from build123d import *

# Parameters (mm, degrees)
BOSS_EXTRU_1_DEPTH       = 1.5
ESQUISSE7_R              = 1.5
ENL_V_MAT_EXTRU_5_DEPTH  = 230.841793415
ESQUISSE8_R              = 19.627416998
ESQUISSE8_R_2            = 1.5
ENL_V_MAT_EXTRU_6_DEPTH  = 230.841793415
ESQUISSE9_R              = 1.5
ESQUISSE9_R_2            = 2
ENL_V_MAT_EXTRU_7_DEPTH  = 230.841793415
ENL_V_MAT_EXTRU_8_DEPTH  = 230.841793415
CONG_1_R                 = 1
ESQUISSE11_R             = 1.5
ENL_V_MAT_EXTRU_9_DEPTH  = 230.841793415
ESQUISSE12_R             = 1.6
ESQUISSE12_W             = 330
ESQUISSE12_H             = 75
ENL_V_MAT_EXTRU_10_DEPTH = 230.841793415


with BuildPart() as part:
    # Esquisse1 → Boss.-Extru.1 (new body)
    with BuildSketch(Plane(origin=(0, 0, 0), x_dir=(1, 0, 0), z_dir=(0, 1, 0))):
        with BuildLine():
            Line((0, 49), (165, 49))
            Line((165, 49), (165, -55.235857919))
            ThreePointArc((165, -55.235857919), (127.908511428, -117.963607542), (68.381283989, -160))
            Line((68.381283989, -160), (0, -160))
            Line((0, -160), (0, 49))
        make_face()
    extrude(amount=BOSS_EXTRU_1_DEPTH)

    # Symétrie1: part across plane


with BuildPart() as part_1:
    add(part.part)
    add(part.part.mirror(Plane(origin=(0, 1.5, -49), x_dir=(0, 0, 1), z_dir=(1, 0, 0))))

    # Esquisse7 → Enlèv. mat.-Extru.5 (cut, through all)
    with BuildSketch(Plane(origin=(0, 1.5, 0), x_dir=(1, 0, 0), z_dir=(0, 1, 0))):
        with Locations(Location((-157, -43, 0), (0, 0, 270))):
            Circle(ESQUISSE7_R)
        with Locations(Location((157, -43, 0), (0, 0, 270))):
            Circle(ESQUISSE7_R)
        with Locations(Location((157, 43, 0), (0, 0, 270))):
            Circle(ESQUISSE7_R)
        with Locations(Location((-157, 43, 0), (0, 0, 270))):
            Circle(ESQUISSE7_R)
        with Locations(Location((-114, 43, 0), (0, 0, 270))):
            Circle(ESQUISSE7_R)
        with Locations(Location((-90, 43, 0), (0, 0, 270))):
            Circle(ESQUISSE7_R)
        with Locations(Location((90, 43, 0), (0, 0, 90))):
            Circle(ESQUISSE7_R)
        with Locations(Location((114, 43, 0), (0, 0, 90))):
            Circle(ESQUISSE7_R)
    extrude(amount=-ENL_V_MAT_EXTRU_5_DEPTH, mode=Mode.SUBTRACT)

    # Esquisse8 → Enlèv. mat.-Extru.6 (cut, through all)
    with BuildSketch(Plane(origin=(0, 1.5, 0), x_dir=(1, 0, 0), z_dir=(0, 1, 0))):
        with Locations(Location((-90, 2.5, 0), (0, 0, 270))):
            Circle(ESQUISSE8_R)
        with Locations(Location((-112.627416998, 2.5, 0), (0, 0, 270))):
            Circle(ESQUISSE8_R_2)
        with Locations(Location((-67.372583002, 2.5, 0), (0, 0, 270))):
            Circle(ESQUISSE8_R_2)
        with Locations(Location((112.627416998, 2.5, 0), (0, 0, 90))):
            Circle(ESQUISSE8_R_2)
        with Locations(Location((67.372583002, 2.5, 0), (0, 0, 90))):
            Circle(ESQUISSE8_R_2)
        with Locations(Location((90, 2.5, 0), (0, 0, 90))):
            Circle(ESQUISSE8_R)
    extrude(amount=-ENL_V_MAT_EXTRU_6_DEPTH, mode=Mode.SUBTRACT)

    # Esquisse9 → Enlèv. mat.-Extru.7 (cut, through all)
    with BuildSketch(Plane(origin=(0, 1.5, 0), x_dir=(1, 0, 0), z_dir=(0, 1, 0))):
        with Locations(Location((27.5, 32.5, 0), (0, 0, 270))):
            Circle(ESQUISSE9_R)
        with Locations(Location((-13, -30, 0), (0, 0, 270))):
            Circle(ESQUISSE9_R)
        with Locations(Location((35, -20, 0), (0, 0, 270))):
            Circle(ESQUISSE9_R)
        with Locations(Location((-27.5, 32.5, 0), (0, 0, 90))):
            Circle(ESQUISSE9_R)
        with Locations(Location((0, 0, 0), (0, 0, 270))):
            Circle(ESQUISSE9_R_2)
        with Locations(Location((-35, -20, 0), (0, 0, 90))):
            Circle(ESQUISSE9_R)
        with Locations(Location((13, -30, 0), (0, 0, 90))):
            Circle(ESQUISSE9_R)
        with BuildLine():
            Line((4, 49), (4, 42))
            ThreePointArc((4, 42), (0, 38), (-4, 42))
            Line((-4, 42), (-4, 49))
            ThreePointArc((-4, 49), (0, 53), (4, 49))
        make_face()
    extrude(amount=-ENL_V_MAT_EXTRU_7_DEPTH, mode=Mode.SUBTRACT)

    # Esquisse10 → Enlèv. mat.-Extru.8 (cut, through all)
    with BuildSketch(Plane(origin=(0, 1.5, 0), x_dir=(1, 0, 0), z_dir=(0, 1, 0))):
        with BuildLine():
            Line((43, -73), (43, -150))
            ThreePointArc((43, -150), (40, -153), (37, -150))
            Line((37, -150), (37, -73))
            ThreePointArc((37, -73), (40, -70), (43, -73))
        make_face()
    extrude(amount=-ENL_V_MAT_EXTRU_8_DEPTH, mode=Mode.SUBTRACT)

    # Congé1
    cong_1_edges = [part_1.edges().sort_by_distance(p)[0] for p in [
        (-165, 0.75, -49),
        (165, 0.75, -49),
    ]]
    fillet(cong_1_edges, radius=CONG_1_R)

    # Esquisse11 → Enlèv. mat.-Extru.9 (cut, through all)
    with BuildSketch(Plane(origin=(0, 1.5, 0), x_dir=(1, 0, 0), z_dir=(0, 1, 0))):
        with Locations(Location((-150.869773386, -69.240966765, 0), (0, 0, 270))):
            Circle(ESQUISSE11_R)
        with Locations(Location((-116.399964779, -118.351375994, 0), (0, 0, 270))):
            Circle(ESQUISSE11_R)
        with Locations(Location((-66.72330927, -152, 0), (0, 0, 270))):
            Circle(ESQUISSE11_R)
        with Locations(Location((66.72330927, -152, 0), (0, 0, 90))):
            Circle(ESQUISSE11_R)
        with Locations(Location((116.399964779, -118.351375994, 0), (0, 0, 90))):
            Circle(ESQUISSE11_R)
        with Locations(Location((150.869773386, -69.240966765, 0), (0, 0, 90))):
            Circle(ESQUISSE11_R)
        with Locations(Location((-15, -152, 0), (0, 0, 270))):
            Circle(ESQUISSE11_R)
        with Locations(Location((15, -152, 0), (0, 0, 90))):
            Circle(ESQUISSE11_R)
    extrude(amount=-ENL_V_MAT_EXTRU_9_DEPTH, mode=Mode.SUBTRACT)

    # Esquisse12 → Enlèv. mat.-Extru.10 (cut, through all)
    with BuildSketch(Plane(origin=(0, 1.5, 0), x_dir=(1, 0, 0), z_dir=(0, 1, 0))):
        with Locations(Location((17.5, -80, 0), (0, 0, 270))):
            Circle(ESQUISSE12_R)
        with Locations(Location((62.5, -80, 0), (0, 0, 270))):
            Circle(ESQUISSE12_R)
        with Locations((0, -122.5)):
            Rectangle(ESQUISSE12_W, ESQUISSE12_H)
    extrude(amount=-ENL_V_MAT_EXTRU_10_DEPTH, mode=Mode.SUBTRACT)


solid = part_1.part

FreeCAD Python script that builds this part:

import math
import FreeCAD as App
import Part
import Sketcher

V = App.Vector


def edges_at(feature, points):
    """Names of the edges that pass closest to the given points."""
    edges = feature.Shape.Edges
    near = lambda p: min(range(len(edges)), key=lambda i: edges[i].distToShape(Part.Vertex(*p))[0])
    return sorted({f"Edge{near(p) + 1}" for p in points})

doc = App.newDocument("Part")
params = doc.addObject("Spreadsheet::Sheet", "Params")
for row, (alias, value) in enumerate([
    ("sketch1_radius", "174 mm"),
    ("sketch1_width", "165 mm"),
    ("sketch1_height", "209 mm"),
    ("pad1_length", "1.5 mm"),
    ("sketch2_diameter", "3 mm"),
    ("sketch3_diameter", "3 mm"),
    ("sketch4_diameter", "3 mm"),
    ("sketch4_diameter2", "4 mm"),
    ("sketch4_radius", "4 mm"),
    ("sketch4_height", "7 mm"),
    ("sketch5_radius", "3 mm"),
    ("sketch5_height", "77 mm"),
    ("fillet_radius", "1 mm"),
    ("sketch6_diameter", "3 mm"),
    ("sketch7_diameter", "3.2 mm"),
    ("sketch7_width", "330 mm"),
    ("sketch7_height", "75 mm"),
], start=1):
    params.set(f"A{row}", alias)
    params.set(f"B{row}", "=" + value)
    params.setAlias(f"B{row}", alias)

body = doc.addObject("PartDesign::Body", "Body")

sketch1 = body.newObject("Sketcher::SketchObject", "Sketch")
sketch1.AttachmentSupport = (doc.getObject("XZ_Plane"), [""])
sketch1.MapMode = "FlatFace"
sketch1.addGeometry([
    Part.LineSegment(V(165, -49, 0), V(0, -49, 0)),
    Part.LineSegment(V(0, -49, 0), V(0, 160, 0)),
    Part.LineSegment(V(0, 160, 0), V(68, 160, 0)),
    Part.ArcOfCircle(Part.Circle(V(0, 0, 0), V(0, 0, 1), 174), math.radians(19), math.radians(67)),
    Part.LineSegment(V(165, 55, 0), V(165, -49, 0)),
], False)
sketch1.addConstraint([
    Sketcher.Constraint("Coincident", 0, 2, 1, 1),
    Sketcher.Constraint("Coincident", 1, 2, 2, 1),
    Sketcher.Constraint("Coincident", 2, 2, 3, 2),
    Sketcher.Constraint("Coincident", 3, 1, 4, 1),
    Sketcher.Constraint("Coincident", 4, 2, 0, 1),
    Sketcher.Constraint("Horizontal", 0),
    Sketcher.Constraint("Vertical", 1),
    Sketcher.Constraint("Horizontal", 2),
    Sketcher.Constraint("Vertical", 4),
    Sketcher.Constraint("Coincident", 3, 3, -1, 1),
    Sketcher.Constraint("PointOnObject", 0, 2, -2),
    Sketcher.Constraint("Radius", 3, 174.0),
    Sketcher.Constraint("DistanceX", 0, 2, 0, 1, 165.0),
    Sketcher.Constraint("DistanceY", 1, 1, 1, 2, 209.0),
    Sketcher.Constraint("DistanceY", 0, 2, -1, 1, 49.0),
])
sketch1.setExpression("Constraints[11]", "Params.sketch1_radius")
sketch1.setExpression("Constraints[12]", "Params.sketch1_width")
sketch1.setExpression("Constraints[13]", "Params.sketch1_height")
pad1 = body.newObject("PartDesign::Pad", "Pad")
pad1.Profile = sketch1
pad1.setExpression("Length", "Params.pad1_length")
pad1.Reversed = True
body2 = doc.addObject("PartDesign::Body", "Body001")
doc.recompute()

body2.BaseFeature = body
doc.recompute()

mirroring = doc.addObject("Part::Mirroring", "Mirroring")
mirroring.Source = body
mirroring.Base = V(0, 1.5, -49)
mirroring.Normal = V(1, 0, 0)
body3 = doc.addObject("PartDesign::Body", "Body002")
body3.BaseFeature = mirroring
boolean = body2.newObject("PartDesign::Boolean", "Boolean")
boolean.Type = "Fuse"
boolean.addObjects([body3])
doc.recompute()

sketch2 = body2.newObject("Sketcher::SketchObject", "Sketch001")
sketch2.AttachmentSupport = (doc.getObject("XZ_Plane001"), [""])
sketch2.MapMode = "FlatFace"
sketch2.AttachmentOffset = App.Placement(V(0, 0, -1.5), App.Rotation())
sketch2.addGeometry([
    Part.Circle(V(-157, 43, 0), V(0, 0, 1), 1.5),
    Part.Circle(V(157, 43, 0), V(0, 0, 1), 1.5),
    Part.Circle(V(157, -43, 0), V(0, 0, 1), 1.5),
    Part.Circle(V(-157, -43, 0), V(0, 0, 1), 1.5),
    Part.Circle(V(-114, -43, 0), V(0, 0, 1), 1.5),
    Part.Circle(V(-90, -43, 0), V(0, 0, 1), 1.5),
    Part.Circle(V(90, -43, 0), V(0, 0, 1), 1.5),
    Part.Circle(V(114, -43, 0), V(0, 0, 1), 1.5),
], False)
sketch2.addConstraint([
    Sketcher.Constraint("Equal", 0, 1),
    Sketcher.Constraint("Equal", 1, 2),
    Sketcher.Constraint("Equal", 2, 3),
    Sketcher.Constraint("Equal", 3, 4),
    Sketcher.Constraint("Equal", 4, 5),
    Sketcher.Constraint("Equal", 5, 6),
    Sketcher.Constraint("Equal", 6, 7),
    Sketcher.Constraint("Symmetric", 0, 3, 2, 3, -1, 1),
    Sketcher.Constraint("Symmetric", 1, 3, 3, 3, -1, 1),
    Sketcher.Constraint("Symmetric", 0, 3, 1, 3, -2),
    Sketcher.Constraint("Symmetric", 5, 3, 6, 3, -2),
    Sketcher.Constraint("Symmetric", 4, 3, 7, 3, -2),
    Sketcher.Constraint("Horizontal", 3, 3, 4, 3),
    Sketcher.Constraint("Horizontal", 4, 3, 5, 3),
    Sketcher.Constraint("Diameter", 0, 3.0),
    Sketcher.Constraint("DistanceX", 0, 3, -1, 1, 157.0),
    Sketcher.Constraint("DistanceY", -1, 1, 0, 3, 43.0),
    Sketcher.Constraint("DistanceX", 4, 3, -1, 1, 114.0),
    Sketcher.Constraint("DistanceX", 5, 3, -1, 1, 90.0),
])
sketch2.setExpression("Constraints[14]", "Params.sketch2_diameter")
pocket1 = body2.newObject("PartDesign::Pocket", "Pocket")
pocket1.Profile = sketch2
pocket1.Type = "ThroughAll"
pocket1.Reversed = True

sketch3 = body2.newObject("Sketcher::SketchObject", "Sketch002")
sketch3.AttachmentSupport = (doc.getObject("XZ_Plane001"), [""])
sketch3.MapMode = "FlatFace"
sketch3.AttachmentOffset = App.Placement(V(0, 0, -1.5), App.Rotation())
sketch3.addGeometry([
    Part.Circle(V(-90, -2.5, 0), V(0, 0, 1), 19.6),
    Part.Circle(V(-112.6, -2.5, 0), V(0, 0, 1), 1.5),
    Part.Circle(V(-67.4, -2.5, 0), V(0, 0, 1), 1.5),
    Part.Circle(V(112.6, -2.5, 0), V(0, 0, 1), 1.5),
    Part.Circle(V(67.4, -2.5, 0), V(0, 0, 1), 1.5),
    Part.Circle(V(90, -2.5, 0), V(0, 0, 1), 19.6),
], False)
sketch3.addConstraint([
    Sketcher.Constraint("Equal", 1, 2),
    Sketcher.Constraint("Equal", 2, 3),
    Sketcher.Constraint("Equal", 3, 4),
    Sketcher.Constraint("Equal", 0, 5),
    Sketcher.Constraint("Symmetric", 1, 3, 3, 3, -2),
    Sketcher.Constraint("Symmetric", 2, 3, 4, 3, -2),
    Sketcher.Constraint("Symmetric", 0, 3, 5, 3, -2),
    Sketcher.Constraint("Horizontal", 0, 3, 1, 3),
    Sketcher.Constraint("Horizontal", 1, 3, 2, 3),
    Sketcher.Constraint("Diameter", 1, 3.0),
    Sketcher.Constraint("DistanceX", 0, 3, -1, 1, 90.0),
    Sketcher.Constraint("DistanceX", 2, 3, 3, 3, 180.0),
    Sketcher.Constraint("DistanceY", 0, 3, -1, 1, 2.5),
    Sketcher.Constraint("Diameter", 0, 39.254834),
    Sketcher.Constraint("DistanceX", 1, 3, -1, 1, 112.627417),
])
sketch3.setExpression("Constraints[9]", "Params.sketch3_diameter")
pocket2 = body2.newObject("PartDesign::Pocket", "Pocket001")
pocket2.Profile = sketch3
pocket2.Type = "ThroughAll"
pocket2.Reversed = True

sketch4 = body2.newObject("Sketcher::SketchObject", "Sketch003")
sketch4.AttachmentSupport = (doc.getObject("XZ_Plane001"), [""])
sketch4.MapMode = "FlatFace"
sketch4.AttachmentOffset = App.Placement(V(0, 0, -1.5), App.Rotation())
sketch4.addGeometry([
    Part.Circle(V(27.5, -32.5, 0), V(0, 0, 1), 1.5),
    Part.Circle(V(-13, 30, 0), V(0, 0, 1), 1.5),
    Part.Circle(V(35, 20, 0), V(0, 0, 1), 1.5),
    Part.Circle(V(-27.5, -32.5, 0), V(0, 0, 1), 1.5),
    Part.Circle(V(0, 0, 0), V(0, 0, 1), 2),
    Part.Circle(V(-35, 20, 0), V(0, 0, 1), 1.5),
    Part.Circle(V(13, 30, 0), V(0, 0, 1), 1.5),
    Part.LineSegment(V(4, -42, 0), V(4, -49, 0)),
    Part.ArcOfCircle(Part.Circle(V(0, -49, 0), V(0, 0, 1), 4), math.radians(180), math.radians(360)),
    Part.LineSegment(V(-4, -49, 0), V(-4, -42, 0)),
    Part.ArcOfCircle(Part.Circle(V(0, -42, 0), V(0, 0, 1), 4), math.radians(0), math.radians(180)),
], False)
sketch4.addConstraint([
    Sketcher.Constraint("Tangent", 7, 2, 8, 2),
    Sketcher.Constraint("Tangent", 8, 1, 9, 1),
    Sketcher.Constraint("Tangent", 9, 2, 10, 2),
    Sketcher.Constraint("Tangent", 10, 1, 7, 1),
    Sketcher.Constraint("Vertical", 7),
    Sketcher.Constraint("Vertical", 9),
    Sketcher.Constraint("Coincident", 4, 3, -1, 1),
    Sketcher.Constraint("Equal", 0, 1),
    Sketcher.Constraint("Equal", 1, 2),
    Sketcher.Constraint("Equal", 2, 3),
    Sketcher.Constraint("Equal", 3, 5),
    Sketcher.Constraint("Equal", 5, 6),
    Sketcher.Constraint("Symmetric", 0, 3, 3, 3, -2),
    Sketcher.Constraint("Symmetric", 2, 3, 5, 3, -2),
    Sketcher.Constraint("Symmetric", 1, 3, 6, 3, -2),
    Sketcher.Constraint("PointOnObject", 8, 3, -2),
    Sketcher.Constraint("Diameter", 0, 3.0),
    Sketcher.Constraint("Diameter", 4, 4.0),
    Sketcher.Constraint("Radius", 8, 4.0),
    Sketcher.Constraint("DistanceY", 7, 2, 7, 1, 7.0),
    Sketcher.Constraint("DistanceX", 1, 3, -1, 1, 13.0),
    Sketcher.Constraint("DistanceY", -1, 1, 1, 3, 30.0),
    Sketcher.Constraint("DistanceX", -1, 1, 2, 3, 35.0),
    Sketcher.Constraint("DistanceY", -1, 1, 2, 3, 20.0),
    Sketcher.Constraint("DistanceY", 8, 3, -1, 1, 49.0),
    Sketcher.Constraint("DistanceX", 3, 3, 0, 3, 55.0),
    Sketcher.Constraint("DistanceY", 0, 3, -1, 1, 32.5),
])
sketch4.setExpression("Constraints[16]", "Params.sketch4_diameter")
sketch4.setExpression("Constraints[17]", "Params.sketch4_diameter2")
sketch4.setExpression("Constraints[18]", "Params.sketch4_radius")
sketch4.setExpression("Constraints[19]", "Params.sketch4_height")
pocket3 = body2.newObject("PartDesign::Pocket", "Pocket002")
pocket3.Profile = sketch4
pocket3.Type = "ThroughAll"
pocket3.Reversed = True

sketch5 = body2.newObject("Sketcher::SketchObject", "Sketch004")
sketch5.AttachmentSupport = (doc.getObject("XZ_Plane001"), [""])
sketch5.MapMode = "FlatFace"
sketch5.AttachmentOffset = App.Placement(V(0, 0, -1.5), App.Rotation())
sketch5.addGeometry([
    Part.LineSegment(V(43, 150, 0), V(43, 73, 0)),
    Part.ArcOfCircle(Part.Circle(V(40, 73, 0), V(0, 0, 1), 3), math.radians(180), math.radians(360)),
    Part.LineSegment(V(37, 73, 0), V(37, 150, 0)),
    Part.ArcOfCircle(Part.Circle(V(40, 150, 0), V(0, 0, 1), 3), math.radians(0), math.radians(180)),
], False)
sketch5.addConstraint([
    Sketcher.Constraint("Tangent", 0, 2, 1, 2),
    Sketcher.Constraint("Tangent", 1, 1, 2, 1),
    Sketcher.Constraint("Tangent", 2, 2, 3, 2),
    Sketcher.Constraint("Tangent", 3, 1, 0, 1),
    Sketcher.Constraint("Vertical", 0),
    Sketcher.Constraint("Vertical", 2),
    Sketcher.Constraint("Radius", 1, 3.0),
    Sketcher.Constraint("DistanceY", 0, 2, 0, 1, 77.0),
    Sketcher.Constraint("DistanceX", -1, 1, 1, 3, 40.0),
    Sketcher.Constraint("DistanceY", -1, 1, 1, 3, 73.0),
])
sketch5.setExpression("Constraints[6]", "Params.sketch5_radius")
sketch5.setExpression("Constraints[7]", "Params.sketch5_height")
pocket4 = body2.newObject("PartDesign::Pocket", "Pocket003")
pocket4.Profile = sketch5
pocket4.Type = "ThroughAll"
pocket4.Reversed = True
doc.recompute()

fillet = body2.newObject("PartDesign::Fillet", "Fillet")
fillet.Base = (pocket4, edges_at(pocket4, [(-165, 0.75, -49), (165, 0.75, -49)]))
fillet.setExpression("Radius", "Params.fillet_radius")

sketch6 = body2.newObject("Sketcher::SketchObject", "Sketch005")
sketch6.AttachmentSupport = (doc.getObject("XZ_Plane001"), [""])
sketch6.MapMode = "FlatFace"
sketch6.AttachmentOffset = App.Placement(V(0, 0, -1.5), App.Rotation())
sketch6.addGeometry([
    Part.Circle(V(-150.9, 69.2, 0), V(0, 0, 1), 1.5),
    Part.Circle(V(-116.4, 118.4, 0), V(0, 0, 1), 1.5),
    Part.Circle(V(-66.7, 152, 0), V(0, 0, 1), 1.5),
    Part.Circle(V(66.7, 152, 0), V(0, 0, 1), 1.5),
    Part.Circle(V(116.4, 118.4, 0), V(0, 0, 1), 1.5),
    Part.Circle(V(150.9, 69.2, 0), V(0, 0, 1), 1.5),
    Part.Circle(V(-15, 152, 0), V(0, 0, 1), 1.5),
    Part.Circle(V(15, 152, 0), V(0, 0, 1), 1.5),
], False)
sketch6.addConstraint([
    Sketcher.Constraint("Equal", 0, 1),
    Sketcher.Constraint("Equal", 1, 2),
    Sketcher.Constraint("Equal", 2, 3),
    Sketcher.Constraint("Equal", 3, 4),
    Sketcher.Constraint("Equal", 4, 5),
    Sketcher.Constraint("Equal", 5, 6),
    Sketcher.Constraint("Equal", 6, 7),
    Sketcher.Constraint("Symmetric", 2, 3, 3, 3, -2),
    Sketcher.Constraint("Symmetric", 1, 3, 4, 3, -2),
    Sketcher.Constraint("Symmetric", 0, 3, 5, 3, -2),
    Sketcher.Constraint("Symmetric", 6, 3, 7, 3, -2),
    Sketcher.Constraint("Horizontal", 3, 3, 6, 3),
    Sketcher.Constraint("Diameter", 0, 3.0),
    Sketcher.Constraint("DistanceY", -1, 1, 2, 3, 152.0),
    Sketcher.Constraint("DistanceX", 6, 3, -1, 1, 15.0),
    Sketcher.Constraint("DistanceX", 2, 3, -1, 1, 66.723309),
    Sketcher.Constraint("DistanceX", 0, 3, 1, 3, 34.469809),
    Sketcher.Constraint("DistanceY", 0, 3, 1, 3, 49.110409),
    Sketcher.Constraint("DistanceX", 1, 3, 4, 3, 232.79993),
    Sketcher.Constraint("DistanceY", -1, 1, 0, 3, 69.240967),
])
sketch6.setExpression("Constraints[12]", "Params.sketch6_diameter")
pocket5 = body2.newObject("PartDesign::Pocket", "Pocket004")
pocket5.Profile = sketch6
pocket5.Type = "ThroughAll"
pocket5.Reversed = True

sketch7 = body2.newObject("Sketcher::SketchObject", "Sketch006")
sketch7.AttachmentSupport = (doc.getObject("XZ_Plane001"), [""])
sketch7.MapMode = "FlatFace"
sketch7.AttachmentOffset = App.Placement(V(0, 0, -1.5), App.Rotation())
sketch7.addGeometry([
    Part.Circle(V(17.5, 80, 0), V(0, 0, 1), 1.6),
    Part.Circle(V(62.5, 80, 0), V(0, 0, 1), 1.6),
    Part.LineSegment(V(-165, 85, 0), V(-165, 160, 0)),
    Part.LineSegment(V(-165, 160, 0), V(165, 160, 0)),
    Part.LineSegment(V(165, 160, 0), V(165, 85, 0)),
    Part.LineSegment(V(165, 85, 0), V(-165, 85, 0)),
], False)
sketch7.addConstraint([
    Sketcher.Constraint("Coincident", 2, 2, 3, 1),
    Sketcher.Constraint("Coincident", 3, 2, 4, 1),
    Sketcher.Constraint("Coincident", 4, 2, 5, 1),
    Sketcher.Constraint("Coincident", 5, 2, 2, 1),
    Sketcher.Constraint("Vertical", 2),
    Sketcher.Constraint("Horizontal", 3),
    Sketcher.Constraint("Vertical", 4),
    Sketcher.Constraint("Horizontal", 5),
    Sketcher.Constraint("Equal", 0, 1),
    Sketcher.Constraint("Horizontal", 0, 3, 1, 3),
    Sketcher.Constraint("Diameter", 0, 3.2),
    Sketcher.Constraint("DistanceX", 3, 1, 3, 2, 330.0),
    Sketcher.Constraint("DistanceY", 2, 1, 2, 2, 75.0),
    Sketcher.Constraint("DistanceY", -1, 1, 0, 3, 80.0),
    Sketcher.Constraint("DistanceX", 2, 2, -1, 1, 165.0),
    Sketcher.Constraint("DistanceY", -1, 1, 2, 2, 160.0),
    Sketcher.Constraint("DistanceX", 0, 3, 1, 3, 45.0),
    Sketcher.Constraint("DistanceX", -1, 1, 0, 3, 17.5),
])
sketch7.setExpression("Constraints[10]", "Params.sketch7_diameter")
sketch7.setExpression("Constraints[11]", "Params.sketch7_width")
sketch7.setExpression("Constraints[12]", "Params.sketch7_height")
pocket6 = body2.newObject("PartDesign::Pocket", "Pocket005")
pocket6.Profile = sketch7
pocket6.Type = "ThroughAll"
pocket6.Reversed = True
mirroring.Visibility = False

doc.recompute()
